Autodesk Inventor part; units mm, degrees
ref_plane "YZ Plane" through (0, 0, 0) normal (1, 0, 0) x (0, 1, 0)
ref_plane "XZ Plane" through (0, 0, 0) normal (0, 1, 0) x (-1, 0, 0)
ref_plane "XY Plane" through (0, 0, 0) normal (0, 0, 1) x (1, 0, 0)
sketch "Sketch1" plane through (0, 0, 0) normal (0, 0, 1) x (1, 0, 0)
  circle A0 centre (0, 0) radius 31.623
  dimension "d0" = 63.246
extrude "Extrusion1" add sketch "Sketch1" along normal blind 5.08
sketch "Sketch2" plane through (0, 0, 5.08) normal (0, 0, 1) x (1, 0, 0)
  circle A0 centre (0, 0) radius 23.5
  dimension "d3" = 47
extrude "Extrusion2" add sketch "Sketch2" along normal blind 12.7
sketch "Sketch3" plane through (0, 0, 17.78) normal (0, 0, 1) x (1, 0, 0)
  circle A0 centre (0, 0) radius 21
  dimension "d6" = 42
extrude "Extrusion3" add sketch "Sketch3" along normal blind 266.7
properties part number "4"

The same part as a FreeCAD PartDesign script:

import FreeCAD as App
import Part
import Sketcher
from FreeCAD import Vector
Q = App.Units.Quantity

doc = App.newDocument("Part")
params = doc.addObject("Spreadsheet::Sheet", "Params")
for row, (alias, value) in enumerate([
    ("sketch1_diameter", "2.49 in"),
    ("pad1_length", "0.2 in"),
    ("pad2_length", "0.5 in"),
    ("pad3_length", "10.5 in"),
], start=1):
    params.set(f"A{row}", alias)
    params.set(f"B{row}", "=" + value)
    params.setAlias(f"B{row}", alias)

body = doc.addObject("PartDesign::Body", "Body")

# Sketch on XY plane
sketch1 = body.newObject("Sketcher::SketchObject", "Sketch")
sketch1.AttachmentSupport = (doc.getObject("XY_Plane"), [""])
sketch1.MapMode = "FlatFace"
sketch1.addGeometry(Part.Circle(Vector(0, 0, 0), Vector(0, 0, 1), 32), False)
sketch1.addConstraint(Sketcher.Constraint("Coincident", 0, 3, -1, 1))
sketch1.addConstraint(Sketcher.Constraint("Diameter", 0, Q("2.49 in")))
sketch1.setExpression("Constraints[1]", "Params.sketch1_diameter")
pad1 = body.newObject("PartDesign::Pad", "Pad")
pad1.Profile = sketch1
pad1.setExpression("Length", "Params.pad1_length")

# Sketch on XY plane
sketch2 = body.newObject("Sketcher::SketchObject", "Sketch001")
sketch2.AttachmentSupport = (doc.getObject("XY_Plane"), [""])
sketch2.MapMode = "FlatFace"
sketch2.AttachmentOffset = App.Placement(Vector(0, 0, 0.2 * 25.4), App.Rotation())
sketch2.addGeometry(Part.Circle(Vector(0, 0, 0), Vector(0, 0, 1), 24), False)
sketch2.addConstraint(Sketcher.Constraint("Coincident", 0, 3, -1, 1))
sketch2.addConstraint(Sketcher.Constraint("Diameter", 0, Q("1.8504 in")))
pad2 = body.newObject("PartDesign::Pad", "Pad001")
pad2.Profile = sketch2
pad2.setExpression("Length", "Params.pad2_length")

# Sketch on XY plane
sketch3 = body.newObject("Sketcher::SketchObject", "Sketch002")
sketch3.AttachmentSupport = (doc.getObject("XY_Plane"), [""])
sketch3.MapMode = "FlatFace"
sketch3.AttachmentOffset = App.Placement(Vector(0, 0, 0.7 * 25.4), App.Rotation())
sketch3.addGeometry(Part.Circle(Vector(0, 0, 0), Vector(0, 0, 1), 21), False)
sketch3.addConstraint(Sketcher.Constraint("Coincident", 0, 3, -1, 1))
sketch3.addConstraint(Sketcher.Constraint("Diameter", 0, Q("42 mm")))
pad3 = body.newObject("PartDesign::Pad", "Pad002")
pad3.Profile = sketch3
pad3.setExpression("Length", "Params.pad3_length")

doc.recompute()
